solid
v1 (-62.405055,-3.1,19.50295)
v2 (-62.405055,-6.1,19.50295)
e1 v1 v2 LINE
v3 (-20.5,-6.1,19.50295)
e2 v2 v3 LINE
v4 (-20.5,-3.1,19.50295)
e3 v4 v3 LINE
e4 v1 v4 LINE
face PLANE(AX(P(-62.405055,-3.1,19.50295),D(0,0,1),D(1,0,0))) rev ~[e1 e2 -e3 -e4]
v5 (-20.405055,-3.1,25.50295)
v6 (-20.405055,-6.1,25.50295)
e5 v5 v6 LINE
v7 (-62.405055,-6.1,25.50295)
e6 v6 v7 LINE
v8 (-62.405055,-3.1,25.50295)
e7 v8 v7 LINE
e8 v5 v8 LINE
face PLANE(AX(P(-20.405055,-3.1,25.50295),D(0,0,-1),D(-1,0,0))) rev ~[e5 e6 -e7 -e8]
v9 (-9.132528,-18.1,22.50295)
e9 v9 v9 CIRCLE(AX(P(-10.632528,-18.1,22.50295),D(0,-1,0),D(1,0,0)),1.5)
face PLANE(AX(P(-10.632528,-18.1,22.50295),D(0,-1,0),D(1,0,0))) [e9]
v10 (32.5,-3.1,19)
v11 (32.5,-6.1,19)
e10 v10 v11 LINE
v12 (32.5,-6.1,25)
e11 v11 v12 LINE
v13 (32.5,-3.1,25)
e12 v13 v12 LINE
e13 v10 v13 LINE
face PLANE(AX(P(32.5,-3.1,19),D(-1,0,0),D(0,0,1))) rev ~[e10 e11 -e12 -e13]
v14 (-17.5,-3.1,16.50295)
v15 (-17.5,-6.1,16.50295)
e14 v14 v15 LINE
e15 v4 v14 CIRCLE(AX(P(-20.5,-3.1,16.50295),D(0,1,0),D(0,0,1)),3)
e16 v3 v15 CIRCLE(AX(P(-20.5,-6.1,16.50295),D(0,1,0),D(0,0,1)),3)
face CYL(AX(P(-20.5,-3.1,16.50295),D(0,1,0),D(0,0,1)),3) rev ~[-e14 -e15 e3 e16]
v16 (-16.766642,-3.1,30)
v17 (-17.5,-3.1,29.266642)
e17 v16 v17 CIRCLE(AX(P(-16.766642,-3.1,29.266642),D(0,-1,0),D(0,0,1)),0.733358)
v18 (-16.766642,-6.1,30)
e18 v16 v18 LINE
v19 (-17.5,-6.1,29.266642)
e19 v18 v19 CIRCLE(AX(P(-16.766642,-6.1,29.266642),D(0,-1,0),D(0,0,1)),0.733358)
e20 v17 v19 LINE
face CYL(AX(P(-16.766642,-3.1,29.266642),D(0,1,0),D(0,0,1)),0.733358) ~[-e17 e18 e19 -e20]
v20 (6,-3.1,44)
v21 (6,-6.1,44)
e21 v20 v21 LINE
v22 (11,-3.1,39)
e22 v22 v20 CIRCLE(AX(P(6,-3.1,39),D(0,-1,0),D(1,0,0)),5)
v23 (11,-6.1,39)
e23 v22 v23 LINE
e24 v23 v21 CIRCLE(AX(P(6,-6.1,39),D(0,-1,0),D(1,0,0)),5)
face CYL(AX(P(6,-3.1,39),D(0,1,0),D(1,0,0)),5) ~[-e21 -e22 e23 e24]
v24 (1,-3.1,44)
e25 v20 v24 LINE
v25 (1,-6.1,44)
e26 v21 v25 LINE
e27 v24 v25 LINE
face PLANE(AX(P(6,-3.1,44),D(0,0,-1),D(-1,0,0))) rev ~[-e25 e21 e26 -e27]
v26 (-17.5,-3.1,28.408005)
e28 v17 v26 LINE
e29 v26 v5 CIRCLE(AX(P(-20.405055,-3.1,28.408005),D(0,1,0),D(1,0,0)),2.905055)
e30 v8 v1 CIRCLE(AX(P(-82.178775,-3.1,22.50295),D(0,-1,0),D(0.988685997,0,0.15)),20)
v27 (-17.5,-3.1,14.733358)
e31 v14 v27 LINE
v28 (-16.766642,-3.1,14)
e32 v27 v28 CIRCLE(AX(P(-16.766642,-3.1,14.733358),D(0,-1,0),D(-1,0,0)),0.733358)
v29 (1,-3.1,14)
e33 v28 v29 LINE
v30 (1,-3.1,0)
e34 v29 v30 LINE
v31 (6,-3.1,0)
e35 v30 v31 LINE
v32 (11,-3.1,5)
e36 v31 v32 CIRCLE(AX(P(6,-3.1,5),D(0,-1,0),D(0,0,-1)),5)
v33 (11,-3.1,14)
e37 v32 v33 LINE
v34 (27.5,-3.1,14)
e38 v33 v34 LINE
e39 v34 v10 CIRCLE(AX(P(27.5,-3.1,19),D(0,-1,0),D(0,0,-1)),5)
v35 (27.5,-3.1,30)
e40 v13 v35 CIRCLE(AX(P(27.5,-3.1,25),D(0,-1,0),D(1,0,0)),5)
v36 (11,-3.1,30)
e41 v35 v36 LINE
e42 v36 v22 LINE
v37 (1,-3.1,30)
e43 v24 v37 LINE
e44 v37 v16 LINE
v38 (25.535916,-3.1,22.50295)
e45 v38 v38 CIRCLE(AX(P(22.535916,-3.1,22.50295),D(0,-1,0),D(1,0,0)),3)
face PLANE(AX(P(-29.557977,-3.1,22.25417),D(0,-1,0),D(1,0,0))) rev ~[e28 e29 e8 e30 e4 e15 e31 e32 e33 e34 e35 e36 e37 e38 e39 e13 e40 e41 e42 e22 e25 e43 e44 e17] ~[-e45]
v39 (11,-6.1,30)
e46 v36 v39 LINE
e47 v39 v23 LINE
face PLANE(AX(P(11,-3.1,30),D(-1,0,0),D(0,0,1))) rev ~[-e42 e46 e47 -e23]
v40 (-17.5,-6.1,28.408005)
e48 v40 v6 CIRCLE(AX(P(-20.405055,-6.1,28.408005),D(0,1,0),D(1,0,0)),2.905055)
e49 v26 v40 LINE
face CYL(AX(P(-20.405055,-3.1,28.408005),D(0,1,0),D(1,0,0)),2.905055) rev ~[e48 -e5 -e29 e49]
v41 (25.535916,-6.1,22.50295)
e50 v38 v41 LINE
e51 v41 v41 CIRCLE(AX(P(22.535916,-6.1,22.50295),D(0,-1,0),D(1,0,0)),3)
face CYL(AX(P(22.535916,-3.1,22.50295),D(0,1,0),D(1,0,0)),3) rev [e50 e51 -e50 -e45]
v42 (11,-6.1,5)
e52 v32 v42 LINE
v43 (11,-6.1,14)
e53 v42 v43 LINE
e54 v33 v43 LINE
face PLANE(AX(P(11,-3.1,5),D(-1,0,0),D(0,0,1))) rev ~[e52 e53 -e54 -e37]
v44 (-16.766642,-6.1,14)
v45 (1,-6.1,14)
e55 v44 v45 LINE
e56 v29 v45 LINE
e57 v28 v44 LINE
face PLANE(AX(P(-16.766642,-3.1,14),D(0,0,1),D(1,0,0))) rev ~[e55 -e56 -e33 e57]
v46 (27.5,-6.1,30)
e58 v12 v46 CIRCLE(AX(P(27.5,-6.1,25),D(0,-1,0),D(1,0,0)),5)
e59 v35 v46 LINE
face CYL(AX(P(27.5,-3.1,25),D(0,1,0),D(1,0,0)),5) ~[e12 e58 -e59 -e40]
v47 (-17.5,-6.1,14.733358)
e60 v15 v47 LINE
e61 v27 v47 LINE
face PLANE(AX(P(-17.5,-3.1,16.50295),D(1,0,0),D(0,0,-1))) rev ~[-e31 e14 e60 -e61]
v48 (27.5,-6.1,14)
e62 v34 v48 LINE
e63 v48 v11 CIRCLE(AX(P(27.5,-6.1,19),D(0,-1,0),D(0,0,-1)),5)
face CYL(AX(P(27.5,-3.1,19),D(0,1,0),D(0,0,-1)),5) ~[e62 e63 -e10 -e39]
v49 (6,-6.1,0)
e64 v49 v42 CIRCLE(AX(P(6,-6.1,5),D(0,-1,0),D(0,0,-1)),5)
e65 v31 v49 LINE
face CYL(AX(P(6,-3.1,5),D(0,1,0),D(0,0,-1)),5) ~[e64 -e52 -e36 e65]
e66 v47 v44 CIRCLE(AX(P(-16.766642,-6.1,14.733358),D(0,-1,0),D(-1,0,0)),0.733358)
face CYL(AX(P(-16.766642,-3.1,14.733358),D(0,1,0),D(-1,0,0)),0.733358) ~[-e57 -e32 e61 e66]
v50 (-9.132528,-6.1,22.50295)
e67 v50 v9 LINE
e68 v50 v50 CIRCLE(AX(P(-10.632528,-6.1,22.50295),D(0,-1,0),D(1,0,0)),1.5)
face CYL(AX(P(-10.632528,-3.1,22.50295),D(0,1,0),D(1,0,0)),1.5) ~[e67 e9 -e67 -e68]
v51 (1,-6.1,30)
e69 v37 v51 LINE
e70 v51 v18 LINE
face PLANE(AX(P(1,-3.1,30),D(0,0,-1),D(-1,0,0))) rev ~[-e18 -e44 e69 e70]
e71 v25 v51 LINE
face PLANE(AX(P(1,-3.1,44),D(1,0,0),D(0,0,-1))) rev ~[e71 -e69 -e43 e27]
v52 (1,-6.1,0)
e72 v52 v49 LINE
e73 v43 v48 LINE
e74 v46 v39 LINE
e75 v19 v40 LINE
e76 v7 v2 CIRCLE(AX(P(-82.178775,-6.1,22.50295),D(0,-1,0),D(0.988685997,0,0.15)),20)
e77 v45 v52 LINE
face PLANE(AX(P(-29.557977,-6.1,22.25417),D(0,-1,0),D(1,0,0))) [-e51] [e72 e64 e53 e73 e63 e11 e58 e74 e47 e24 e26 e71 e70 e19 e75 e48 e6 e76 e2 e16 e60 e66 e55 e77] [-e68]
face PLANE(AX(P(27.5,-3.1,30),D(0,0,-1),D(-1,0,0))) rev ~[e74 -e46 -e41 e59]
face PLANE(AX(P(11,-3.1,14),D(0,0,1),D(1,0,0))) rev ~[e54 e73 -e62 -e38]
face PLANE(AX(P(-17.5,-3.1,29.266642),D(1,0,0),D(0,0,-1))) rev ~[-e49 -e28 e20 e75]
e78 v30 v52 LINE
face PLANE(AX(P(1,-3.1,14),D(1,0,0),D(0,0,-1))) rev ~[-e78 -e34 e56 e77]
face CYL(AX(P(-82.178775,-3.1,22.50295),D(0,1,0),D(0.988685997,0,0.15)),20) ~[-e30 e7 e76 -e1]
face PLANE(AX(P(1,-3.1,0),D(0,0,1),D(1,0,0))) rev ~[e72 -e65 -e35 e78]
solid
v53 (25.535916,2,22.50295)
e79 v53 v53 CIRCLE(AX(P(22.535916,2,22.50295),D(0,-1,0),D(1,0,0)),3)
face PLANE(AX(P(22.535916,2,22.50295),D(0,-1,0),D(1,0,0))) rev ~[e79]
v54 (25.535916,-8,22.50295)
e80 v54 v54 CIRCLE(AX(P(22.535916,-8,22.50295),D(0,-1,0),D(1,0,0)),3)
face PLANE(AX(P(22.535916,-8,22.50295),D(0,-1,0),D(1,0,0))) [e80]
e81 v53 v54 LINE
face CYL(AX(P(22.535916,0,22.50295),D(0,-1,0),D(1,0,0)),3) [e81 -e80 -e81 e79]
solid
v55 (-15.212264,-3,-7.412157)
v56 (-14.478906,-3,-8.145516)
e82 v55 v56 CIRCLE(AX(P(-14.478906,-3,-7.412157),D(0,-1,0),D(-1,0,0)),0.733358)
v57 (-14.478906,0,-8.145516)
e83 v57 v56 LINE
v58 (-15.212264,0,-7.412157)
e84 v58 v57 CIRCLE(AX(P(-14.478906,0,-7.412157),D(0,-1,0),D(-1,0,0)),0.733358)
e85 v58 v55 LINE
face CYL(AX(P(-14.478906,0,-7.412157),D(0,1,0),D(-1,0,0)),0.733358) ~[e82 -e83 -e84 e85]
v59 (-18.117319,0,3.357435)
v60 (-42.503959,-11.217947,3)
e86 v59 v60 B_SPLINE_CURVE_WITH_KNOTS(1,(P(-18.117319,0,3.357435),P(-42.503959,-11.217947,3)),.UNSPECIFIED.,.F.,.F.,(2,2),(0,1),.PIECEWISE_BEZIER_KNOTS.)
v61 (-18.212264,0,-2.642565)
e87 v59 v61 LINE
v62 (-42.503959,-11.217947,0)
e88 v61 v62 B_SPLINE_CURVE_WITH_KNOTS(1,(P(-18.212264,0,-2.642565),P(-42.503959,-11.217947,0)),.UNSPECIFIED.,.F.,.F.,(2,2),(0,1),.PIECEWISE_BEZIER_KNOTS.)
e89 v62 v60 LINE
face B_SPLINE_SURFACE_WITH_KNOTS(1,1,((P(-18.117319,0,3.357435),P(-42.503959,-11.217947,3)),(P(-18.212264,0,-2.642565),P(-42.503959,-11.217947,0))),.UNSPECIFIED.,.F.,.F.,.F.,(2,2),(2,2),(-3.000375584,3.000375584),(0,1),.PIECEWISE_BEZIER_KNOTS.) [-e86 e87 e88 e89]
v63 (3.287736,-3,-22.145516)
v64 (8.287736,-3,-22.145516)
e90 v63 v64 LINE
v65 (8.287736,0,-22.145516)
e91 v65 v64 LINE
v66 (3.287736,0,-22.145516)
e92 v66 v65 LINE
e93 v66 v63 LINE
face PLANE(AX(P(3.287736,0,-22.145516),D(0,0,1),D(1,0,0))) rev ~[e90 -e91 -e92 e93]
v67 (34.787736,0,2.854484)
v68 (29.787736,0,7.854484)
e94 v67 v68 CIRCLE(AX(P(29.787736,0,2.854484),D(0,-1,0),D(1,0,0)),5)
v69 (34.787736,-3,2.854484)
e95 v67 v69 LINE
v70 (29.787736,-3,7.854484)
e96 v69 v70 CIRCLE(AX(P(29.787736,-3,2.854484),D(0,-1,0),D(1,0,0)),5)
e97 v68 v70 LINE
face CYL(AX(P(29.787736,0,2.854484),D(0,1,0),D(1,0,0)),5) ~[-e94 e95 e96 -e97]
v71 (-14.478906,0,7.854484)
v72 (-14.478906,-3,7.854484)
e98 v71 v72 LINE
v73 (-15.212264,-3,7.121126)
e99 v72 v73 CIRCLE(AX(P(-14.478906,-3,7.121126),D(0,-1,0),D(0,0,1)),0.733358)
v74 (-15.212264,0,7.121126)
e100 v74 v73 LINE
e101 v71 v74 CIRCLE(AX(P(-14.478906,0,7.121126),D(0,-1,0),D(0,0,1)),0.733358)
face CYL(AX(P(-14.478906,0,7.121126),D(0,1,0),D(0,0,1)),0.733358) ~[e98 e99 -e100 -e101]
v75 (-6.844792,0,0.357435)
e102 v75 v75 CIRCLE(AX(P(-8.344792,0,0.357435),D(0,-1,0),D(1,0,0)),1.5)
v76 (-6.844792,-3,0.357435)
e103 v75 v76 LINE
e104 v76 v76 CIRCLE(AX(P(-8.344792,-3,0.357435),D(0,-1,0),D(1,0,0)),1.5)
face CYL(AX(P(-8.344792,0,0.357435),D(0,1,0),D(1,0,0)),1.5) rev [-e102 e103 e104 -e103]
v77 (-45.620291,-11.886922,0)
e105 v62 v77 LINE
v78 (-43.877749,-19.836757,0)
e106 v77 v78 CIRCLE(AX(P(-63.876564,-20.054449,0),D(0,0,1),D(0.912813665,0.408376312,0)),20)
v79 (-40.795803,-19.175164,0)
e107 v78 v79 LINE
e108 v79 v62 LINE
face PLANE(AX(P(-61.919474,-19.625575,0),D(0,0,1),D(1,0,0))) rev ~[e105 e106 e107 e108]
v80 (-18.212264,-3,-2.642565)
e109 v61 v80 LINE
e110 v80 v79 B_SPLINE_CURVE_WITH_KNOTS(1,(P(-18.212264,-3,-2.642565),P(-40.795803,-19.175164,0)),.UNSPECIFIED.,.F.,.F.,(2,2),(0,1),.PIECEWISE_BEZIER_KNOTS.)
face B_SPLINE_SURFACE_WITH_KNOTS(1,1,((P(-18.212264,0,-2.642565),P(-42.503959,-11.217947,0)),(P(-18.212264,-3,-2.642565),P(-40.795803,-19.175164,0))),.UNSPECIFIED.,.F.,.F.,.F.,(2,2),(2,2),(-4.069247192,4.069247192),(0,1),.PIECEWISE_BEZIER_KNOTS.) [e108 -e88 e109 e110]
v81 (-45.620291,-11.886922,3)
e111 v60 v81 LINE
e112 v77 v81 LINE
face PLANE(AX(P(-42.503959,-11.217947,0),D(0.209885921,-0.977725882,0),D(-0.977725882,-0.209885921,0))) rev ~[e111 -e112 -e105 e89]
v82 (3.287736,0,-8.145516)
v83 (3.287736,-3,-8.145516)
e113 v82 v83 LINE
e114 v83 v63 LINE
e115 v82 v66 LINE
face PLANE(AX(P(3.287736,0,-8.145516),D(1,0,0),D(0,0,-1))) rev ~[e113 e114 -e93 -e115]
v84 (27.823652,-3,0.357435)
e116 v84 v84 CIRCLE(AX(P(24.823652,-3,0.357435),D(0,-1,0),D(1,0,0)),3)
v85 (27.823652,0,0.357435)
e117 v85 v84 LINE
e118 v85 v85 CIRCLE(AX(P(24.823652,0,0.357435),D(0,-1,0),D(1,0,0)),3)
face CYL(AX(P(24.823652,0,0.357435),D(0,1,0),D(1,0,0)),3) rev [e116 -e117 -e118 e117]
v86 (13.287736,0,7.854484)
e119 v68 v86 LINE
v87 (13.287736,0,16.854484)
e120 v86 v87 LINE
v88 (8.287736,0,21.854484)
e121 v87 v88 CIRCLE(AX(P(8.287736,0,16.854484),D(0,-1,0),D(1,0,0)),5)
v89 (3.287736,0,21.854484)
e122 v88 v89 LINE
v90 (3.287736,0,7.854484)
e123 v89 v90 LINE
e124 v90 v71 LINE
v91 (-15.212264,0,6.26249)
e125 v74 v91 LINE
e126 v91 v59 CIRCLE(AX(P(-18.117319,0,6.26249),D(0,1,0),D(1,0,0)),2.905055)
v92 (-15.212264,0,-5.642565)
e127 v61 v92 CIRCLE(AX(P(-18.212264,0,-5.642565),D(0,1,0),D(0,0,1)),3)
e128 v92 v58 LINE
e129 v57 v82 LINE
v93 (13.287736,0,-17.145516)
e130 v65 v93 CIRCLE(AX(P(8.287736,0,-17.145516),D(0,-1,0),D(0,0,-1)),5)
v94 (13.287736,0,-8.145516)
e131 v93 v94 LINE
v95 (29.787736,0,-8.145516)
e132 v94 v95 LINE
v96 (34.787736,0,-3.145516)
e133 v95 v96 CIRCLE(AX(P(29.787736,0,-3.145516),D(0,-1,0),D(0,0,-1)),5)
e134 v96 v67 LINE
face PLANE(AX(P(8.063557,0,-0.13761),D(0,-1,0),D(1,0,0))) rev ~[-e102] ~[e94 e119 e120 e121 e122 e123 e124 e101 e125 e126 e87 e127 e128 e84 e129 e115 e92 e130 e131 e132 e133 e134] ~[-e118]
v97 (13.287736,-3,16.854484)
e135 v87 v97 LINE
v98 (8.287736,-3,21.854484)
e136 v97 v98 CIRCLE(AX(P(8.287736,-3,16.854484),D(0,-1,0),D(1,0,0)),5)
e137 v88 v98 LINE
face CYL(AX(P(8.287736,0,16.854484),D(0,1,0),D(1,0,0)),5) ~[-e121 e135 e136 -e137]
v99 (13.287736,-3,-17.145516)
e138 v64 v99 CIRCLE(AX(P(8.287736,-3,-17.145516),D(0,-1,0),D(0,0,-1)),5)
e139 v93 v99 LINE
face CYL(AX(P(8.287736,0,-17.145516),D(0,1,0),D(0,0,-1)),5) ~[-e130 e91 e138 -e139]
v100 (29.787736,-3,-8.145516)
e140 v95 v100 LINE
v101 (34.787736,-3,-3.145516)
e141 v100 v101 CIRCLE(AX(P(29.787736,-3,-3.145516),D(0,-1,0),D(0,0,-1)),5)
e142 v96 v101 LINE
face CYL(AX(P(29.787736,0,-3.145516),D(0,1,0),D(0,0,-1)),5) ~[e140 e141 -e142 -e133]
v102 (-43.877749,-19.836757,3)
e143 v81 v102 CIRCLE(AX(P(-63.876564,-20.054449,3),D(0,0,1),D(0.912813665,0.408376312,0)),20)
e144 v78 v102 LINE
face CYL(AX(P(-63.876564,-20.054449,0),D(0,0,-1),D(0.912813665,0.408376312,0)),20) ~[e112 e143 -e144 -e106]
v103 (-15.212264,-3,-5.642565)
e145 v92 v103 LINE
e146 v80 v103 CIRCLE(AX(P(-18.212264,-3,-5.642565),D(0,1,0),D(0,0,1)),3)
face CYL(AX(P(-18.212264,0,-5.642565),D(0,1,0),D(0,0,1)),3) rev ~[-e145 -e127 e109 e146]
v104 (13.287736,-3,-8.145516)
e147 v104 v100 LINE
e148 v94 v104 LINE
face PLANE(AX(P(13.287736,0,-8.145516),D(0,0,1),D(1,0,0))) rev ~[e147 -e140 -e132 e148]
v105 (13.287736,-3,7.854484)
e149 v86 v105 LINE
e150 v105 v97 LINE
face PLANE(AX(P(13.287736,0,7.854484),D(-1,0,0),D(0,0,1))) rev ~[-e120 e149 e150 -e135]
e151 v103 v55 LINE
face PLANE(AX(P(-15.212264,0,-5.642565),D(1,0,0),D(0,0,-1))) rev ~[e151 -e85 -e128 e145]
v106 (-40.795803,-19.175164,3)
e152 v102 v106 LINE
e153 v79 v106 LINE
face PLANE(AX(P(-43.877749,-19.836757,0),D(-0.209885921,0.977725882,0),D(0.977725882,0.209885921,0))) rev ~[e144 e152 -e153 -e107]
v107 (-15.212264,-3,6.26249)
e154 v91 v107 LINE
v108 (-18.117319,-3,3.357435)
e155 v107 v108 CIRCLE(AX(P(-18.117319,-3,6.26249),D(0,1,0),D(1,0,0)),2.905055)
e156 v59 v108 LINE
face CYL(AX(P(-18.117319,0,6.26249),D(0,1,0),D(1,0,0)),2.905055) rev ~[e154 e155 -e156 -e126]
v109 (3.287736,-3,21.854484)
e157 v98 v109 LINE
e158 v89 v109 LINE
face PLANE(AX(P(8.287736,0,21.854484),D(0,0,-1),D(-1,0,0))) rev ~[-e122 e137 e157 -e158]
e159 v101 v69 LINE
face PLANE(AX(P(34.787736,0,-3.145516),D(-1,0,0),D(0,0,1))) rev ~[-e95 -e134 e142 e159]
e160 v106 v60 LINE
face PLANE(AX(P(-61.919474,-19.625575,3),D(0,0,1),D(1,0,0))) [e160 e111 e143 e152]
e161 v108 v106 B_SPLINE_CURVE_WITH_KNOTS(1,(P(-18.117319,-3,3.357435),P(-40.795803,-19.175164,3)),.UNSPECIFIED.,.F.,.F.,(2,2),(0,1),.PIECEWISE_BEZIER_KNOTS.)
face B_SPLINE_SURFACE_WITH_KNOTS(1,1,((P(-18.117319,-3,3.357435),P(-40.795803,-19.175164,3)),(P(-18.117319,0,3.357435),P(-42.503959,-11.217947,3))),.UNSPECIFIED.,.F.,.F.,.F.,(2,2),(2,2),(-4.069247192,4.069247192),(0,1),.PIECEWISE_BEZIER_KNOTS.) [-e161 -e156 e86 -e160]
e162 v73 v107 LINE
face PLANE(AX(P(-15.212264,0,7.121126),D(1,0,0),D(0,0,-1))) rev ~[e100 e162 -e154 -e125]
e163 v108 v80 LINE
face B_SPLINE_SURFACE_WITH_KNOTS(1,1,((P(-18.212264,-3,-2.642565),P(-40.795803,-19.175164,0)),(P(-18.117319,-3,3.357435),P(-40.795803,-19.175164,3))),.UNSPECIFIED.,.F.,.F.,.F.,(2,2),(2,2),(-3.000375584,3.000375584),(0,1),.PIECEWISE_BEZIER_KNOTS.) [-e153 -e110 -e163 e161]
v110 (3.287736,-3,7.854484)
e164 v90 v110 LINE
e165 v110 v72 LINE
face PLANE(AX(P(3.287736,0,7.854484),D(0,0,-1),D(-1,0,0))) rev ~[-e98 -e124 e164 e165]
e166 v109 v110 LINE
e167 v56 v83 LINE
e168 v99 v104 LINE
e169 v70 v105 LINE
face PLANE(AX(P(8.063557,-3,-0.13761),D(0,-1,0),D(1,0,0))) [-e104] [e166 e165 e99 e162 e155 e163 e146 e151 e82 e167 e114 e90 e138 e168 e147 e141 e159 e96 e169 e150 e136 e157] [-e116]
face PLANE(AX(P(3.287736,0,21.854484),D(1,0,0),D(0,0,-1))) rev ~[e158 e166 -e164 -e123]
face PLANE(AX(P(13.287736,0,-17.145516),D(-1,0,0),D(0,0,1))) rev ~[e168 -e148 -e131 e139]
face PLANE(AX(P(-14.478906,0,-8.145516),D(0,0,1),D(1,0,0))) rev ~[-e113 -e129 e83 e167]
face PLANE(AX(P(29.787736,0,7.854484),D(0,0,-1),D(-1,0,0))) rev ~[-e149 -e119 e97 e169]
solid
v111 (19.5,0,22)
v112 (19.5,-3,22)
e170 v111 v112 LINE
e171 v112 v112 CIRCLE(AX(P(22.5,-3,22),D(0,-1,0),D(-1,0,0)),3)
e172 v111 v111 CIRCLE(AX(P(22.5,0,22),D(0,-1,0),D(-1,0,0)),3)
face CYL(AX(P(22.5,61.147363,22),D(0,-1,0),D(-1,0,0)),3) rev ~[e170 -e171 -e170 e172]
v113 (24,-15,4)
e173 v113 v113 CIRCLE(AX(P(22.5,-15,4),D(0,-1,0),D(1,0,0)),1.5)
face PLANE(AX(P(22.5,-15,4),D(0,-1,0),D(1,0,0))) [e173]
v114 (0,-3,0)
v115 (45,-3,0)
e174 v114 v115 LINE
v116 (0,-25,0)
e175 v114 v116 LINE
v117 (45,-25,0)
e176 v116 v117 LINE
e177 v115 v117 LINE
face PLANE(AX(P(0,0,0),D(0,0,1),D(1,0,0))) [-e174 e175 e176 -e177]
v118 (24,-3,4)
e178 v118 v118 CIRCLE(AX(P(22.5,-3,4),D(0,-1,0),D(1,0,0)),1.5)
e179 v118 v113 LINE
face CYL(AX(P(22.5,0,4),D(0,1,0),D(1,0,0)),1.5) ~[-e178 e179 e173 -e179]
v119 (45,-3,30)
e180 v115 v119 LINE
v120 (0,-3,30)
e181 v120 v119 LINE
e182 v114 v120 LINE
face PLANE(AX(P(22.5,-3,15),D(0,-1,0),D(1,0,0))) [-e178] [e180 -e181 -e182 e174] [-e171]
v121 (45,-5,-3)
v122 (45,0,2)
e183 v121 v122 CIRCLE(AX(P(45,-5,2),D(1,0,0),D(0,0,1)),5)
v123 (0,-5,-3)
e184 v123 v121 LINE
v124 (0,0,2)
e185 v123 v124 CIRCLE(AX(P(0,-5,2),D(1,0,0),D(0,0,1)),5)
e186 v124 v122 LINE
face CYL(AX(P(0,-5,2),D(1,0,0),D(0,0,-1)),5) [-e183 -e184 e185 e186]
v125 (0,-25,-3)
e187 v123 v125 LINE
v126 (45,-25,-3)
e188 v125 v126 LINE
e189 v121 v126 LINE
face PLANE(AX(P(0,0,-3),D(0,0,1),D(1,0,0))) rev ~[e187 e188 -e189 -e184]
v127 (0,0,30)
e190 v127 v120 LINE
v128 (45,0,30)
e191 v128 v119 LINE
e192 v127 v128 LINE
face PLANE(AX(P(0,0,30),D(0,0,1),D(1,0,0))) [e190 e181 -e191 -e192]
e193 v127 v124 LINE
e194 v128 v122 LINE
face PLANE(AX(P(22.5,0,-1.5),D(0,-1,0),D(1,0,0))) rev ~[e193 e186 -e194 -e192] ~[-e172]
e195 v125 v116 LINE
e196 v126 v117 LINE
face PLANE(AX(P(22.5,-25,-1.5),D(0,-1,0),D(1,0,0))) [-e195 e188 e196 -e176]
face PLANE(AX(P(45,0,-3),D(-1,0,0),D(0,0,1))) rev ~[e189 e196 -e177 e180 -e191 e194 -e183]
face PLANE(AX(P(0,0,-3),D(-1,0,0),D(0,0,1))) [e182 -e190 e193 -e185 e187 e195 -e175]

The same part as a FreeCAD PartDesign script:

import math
import FreeCAD as App
import Part
import Sketcher
from FreeCAD import Vector


def edges_at(feature, points):
    """Names of the edges that pass closest to the given points."""
    edges = feature.Shape.Edges
    near = lambda p: min(range(len(edges)), key=lambda i: edges[i].distToShape(Part.Vertex(*p))[0])
    return sorted({f"Edge{near(p) + 1}" for p in points})


def add_polygon(sketch, points):
    """Adds a closed chain of lines whose ends are joined by coincident constraints."""
    first, n = sketch.GeometryCount, len(points)
    for a, b in zip(points, points[1:] + points[:1]):
        sketch.addGeometry(Part.LineSegment(App.Vector(*a, 0), App.Vector(*b, 0)), False)
    for i in range(n):
        sketch.addConstraint(Sketcher.Constraint("Coincident", first + i, 2, first + (i + 1) % n, 1))

doc = App.newDocument("Part")
body = doc.addObject("PartDesign::Body", "Body")

# Sketch on XZ plane
sketch1 = doc.addObject("Sketcher::SketchObject", "Sketch")
body.addObject(sketch1)
sketch1.AttachmentSupport = (doc.XZ_Plane, [""])
sketch1.MapMode = "FlatFace"
add_polygon(sketch1, [(0, 30), (0, 0), (45, 0), (45, 30)])  # lines 0-3
sketch1.addGeometry(Part.Circle(Vector(22.5, 4, 0), Vector(0, 0, 1), 1.5), False)  # 4
sketch1.addConstraint(Sketcher.Constraint("Vertical", 0))
sketch1.addConstraint(Sketcher.Constraint("Horizontal", 1))
sketch1.addConstraint(Sketcher.Constraint("Vertical", 2))
sketch1.addConstraint(Sketcher.Constraint("Horizontal", 3))
sketch1.addConstraint(Sketcher.Constraint("Coincident", 0, 2, -1, 1))
sketch1.addConstraint(Sketcher.Constraint("Diameter", 4, 3.0))
sketch1.addConstraint(Sketcher.Constraint("DistanceX", 1, 1, 1, 2, 45.0))
sketch1.addConstraint(Sketcher.Constraint("DistanceY", 0, 2, 0, 1, 30.0))
sketch1.addConstraint(Sketcher.Constraint("DistanceY", -1, 1, 4, 3, 4.0))
sketch1.addConstraint(Sketcher.Constraint("DistanceX", -1, 1, 4, 3, 22.5))
pad1 = doc.addObject("PartDesign::Pad", "Pad")
body.addObject(pad1)
pad1.Profile = sketch1
pad1.Length = 3

# Sketch on XZ plane
sketch2 = doc.addObject("Sketcher::SketchObject", "Sketch001")
body.addObject(sketch2)
sketch2.AttachmentSupport = (doc.XZ_Plane, [""])
sketch2.MapMode = "FlatFace"
add_polygon(sketch2, [(0, 0), (0, -3), (45, -3), (45, 0)])  # lines 0-3
sketch2.addConstraint(Sketcher.Constraint("Vertical", 0))
sketch2.addConstraint(Sketcher.Constraint("Horizontal", 1))
sketch2.addConstraint(Sketcher.Constraint("Vertical", 2))
sketch2.addConstraint(Sketcher.Constraint("Horizontal", 3))
sketch2.addConstraint(Sketcher.Constraint("Coincident", 3, 2, -1, 1))
sketch2.addConstraint(Sketcher.Constraint("DistanceX", 1, 1, 1, 2, 45.0))
sketch2.addConstraint(Sketcher.Constraint("DistanceY", 0, 2, 0, 1, 3.0))
pad2 = doc.addObject("PartDesign::Pad", "Pad001")
body.addObject(pad2)
pad2.Profile = sketch2
pad2.Length = 25

# Sketch on XZ plane
sketch3 = doc.addObject("Sketcher::SketchObject", "Sketch002")
body.addObject(sketch3)
sketch3.AttachmentSupport = (doc.XZ_Plane, [""])
sketch3.MapMode = "FlatFace"
sketch3.addGeometry(Part.Circle(Vector(22.5, 22, 0), Vector(0, 0, 1), 3), False)
sketch3.addConstraint(Sketcher.Constraint("Diameter", 0, 6.0))
sketch3.addConstraint(Sketcher.Constraint("DistanceY", -1, 1, 0, 3, 22.0))
sketch3.addConstraint(Sketcher.Constraint("DistanceX", -1, 1, 0, 3, 22.5))
doc.recompute()
hole = doc.addObject("PartDesign::Hole", "Hole")
body.addObject(hole)
hole.Profile = sketch3
hole.ThreadType = "None"
hole.Diameter = 6
hole.DepthType = "ThroughAll"
hole.Reversed = True
doc.recompute()

fillet = doc.addObject("PartDesign::Fillet", "Fillet")
body.addObject(fillet)
fillet.Base = (hole, edges_at(hole, [(22.5, 0, -3)]))
fillet.Radius = 5

# Sketch on XZ plane
sketch4 = doc.addObject("Sketcher::SketchObject", "Sketch003")
body.addObject(sketch4)
sketch4.AttachmentSupport = (doc.XZ_Plane, [""])
sketch4.MapMode = "FlatFace"
sketch4.addGeometry(Part.Circle(Vector(22.5, 4, 0), Vector(0, 0, 1), 1.5), False)
sketch4.addConstraint(Sketcher.Constraint("Diameter", 0, 3.0))
sketch4.addConstraint(Sketcher.Constraint("DistanceY", -1, 1, 0, 3, 4.0))
sketch4.addConstraint(Sketcher.Constraint("DistanceX", -1, 1, 0, 3, 22.5))
pad3 = doc.addObject("PartDesign::Pad", "Pad002")
body.addObject(pad3)
pad3.Profile = sketch4
pad3.Length = 15
body2 = doc.addObject("PartDesign::Body", "Body001")

# Sketch on XZ plane
sketch5 = doc.addObject("Sketcher::SketchObject", "Sketch004")
body2.addObject(sketch5)
sketch5.AttachmentSupport = (doc.getObject("XZ_Plane001"), [""])
sketch5.MapMode = "FlatFace"
sketch5.addGeometry(Part.ArcOfCircle(Part.Circle(Vector(27.5, 25, 0), Vector(0, 0, 1), 5), math.radians(0), math.radians(90)), False)
sketch5.addGeometry(Part.LineSegment(Vector(27.5, 30, 0), Vector(11, 30, 0)), False)
sketch5.addGeometry(Part.LineSegment(Vector(11, 30, 0), Vector(11, 39, 0)), False)
sketch5.addGeometry(Part.ArcOfCircle(Part.Circle(Vector(6, 39, 0), Vector(0, 0, 1), 5), math.radians(0), math.radians(90)), False)
sketch5.addGeometry(Part.LineSegment(Vector(6, 44, 0), Vector(1, 44, 0)), False)
sketch5.addGeometry(Part.LineSegment(Vector(1, 44, 0), Vector(1, 30, 0)), False)
sketch5.addGeometry(Part.LineSegment(Vector(1, 30, 0), Vector(-16.766642, 30, 0)), False)
sketch5.addGeometry(Part.ArcOfCircle(Part.Circle(Vector(-16.766642, 29.266642, 0), Vector(0, 0, 1), 0.733358), math.radians(90), math.radians(180)), False)
sketch5.addGeometry(Part.LineSegment(Vector(-17.5, 29.266642, 0), Vector(-17.5, 28.408005, 0)), False)
sketch5.addGeometry(Part.ArcOfCircle(Part.Circle(Vector(-20.405055, 28.408005, 0), Vector(0, 0, 1), 2.905055), math.radians(-90), math.radians(0)), False)
sketch5.addGeometry(Part.LineSegment(Vector(-20.405055, 25.50295, 0), Vector(-62.405055, 25.50295, 0)), False)
sketch5.addGeometry(Part.ArcOfCircle(Part.Circle(Vector(-82.178775, 22.50295, 0), Vector(0, 0, 1), 20), math.radians(8.626927), math.radians(351.373073)), False)
sketch5.addGeometry(Part.LineSegment(Vector(-62.405055, 19.50295, 0), Vector(-20.5, 19.50295, 0)), False)
sketch5.addGeometry(Part.ArcOfCircle(Part.Circle(Vector(-20.5, 16.50295, 0), Vector(0, 0, 1), 3), math.radians(0), math.radians(90)), False)
sketch5.addGeometry(Part.LineSegment(Vector(-17.5, 16.50295, 0), Vector(-17.5, 14.733358, 0)), False)
sketch5.addGeometry(Part.ArcOfCircle(Part.Circle(Vector(-16.766642, 14.733358, 0), Vector(0, 0, 1), 0.733358), math.radians(180), math.radians(270)), False)
sketch5.addGeometry(Part.LineSegment(Vector(-16.766642, 14, 0), Vector(1, 14, 0)), False)
sketch5.addGeometry(Part.LineSegment(Vector(1, 14, 0), Vector(1, 0, 0)), False)
sketch5.addGeometry(Part.LineSegment(Vector(1, 0, 0), Vector(6, 0, 0)), False)
sketch5.addGeometry(Part.ArcOfCircle(Part.Circle(Vector(6, 5, 0), Vector(0, 0, 1), 5), math.radians(-90), math.radians(0)), False)
sketch5.addGeometry(Part.LineSegment(Vector(11, 5, 0), Vector(11, 14, 0)), False)
sketch5.addGeometry(Part.LineSegment(Vector(11, 14, 0), Vector(27.5, 14, 0)), False)
sketch5.addGeometry(Part.ArcOfCircle(Part.Circle(Vector(27.5, 19, 0), Vector(0, 0, 1), 5), math.radians(-90), math.radians(0)), False)
sketch5.addGeometry(Part.LineSegment(Vector(32.5, 19, 0), Vector(32.5, 25, 0)), False)
sketch5.addGeometry(Part.Circle(Vector(-10.632528, 22.50295, 0), Vector(0, 0, 1), 1.5), False)
sketch5.addGeometry(Part.Circle(Vector(22.535916, 22.50295, 0), Vector(0, 0, 1), 3), False)
sketch5.addConstraint(Sketcher.Constraint("Tangent", 0, 2, 1, 1))
sketch5.addConstraint(Sketcher.Constraint("Coincident", 1, 2, 2, 1))
sketch5.addConstraint(Sketcher.Constraint("Tangent", 2, 2, 3, 1))
sketch5.addConstraint(Sketcher.Constraint("Tangent", 3, 2, 4, 1))
sketch5.addConstraint(Sketcher.Constraint("Coincident", 4, 2, 5, 1))
sketch5.addConstraint(Sketcher.Constraint("Coincident", 5, 2, 6, 1))
sketch5.addConstraint(Sketcher.Constraint("Tangent", 6, 2, 7, 1))
sketch5.addConstraint(Sketcher.Constraint("Tangent", 7, 2, 8, 1))
sketch5.addConstraint(Sketcher.Constraint("Tangent", 8, 2, 9, 2))
sketch5.addConstraint(Sketcher.Constraint("Tangent", 9, 1, 10, 1))
sketch5.addConstraint(Sketcher.Constraint("Coincident", 10, 2, 11, 1))
sketch5.addConstraint(Sketcher.Constraint("Coincident", 11, 2, 12, 1))
sketch5.addConstraint(Sketcher.Constraint("Tangent", 12, 2, 13, 2))
sketch5.addConstraint(Sketcher.Constraint("Tangent", 13, 1, 14, 1))
sketch5.addConstraint(Sketcher.Constraint("Tangent", 14, 2, 15, 1))
sketch5.addConstraint(Sketcher.Constraint("Tangent", 15, 2, 16, 1))
sketch5.addConstraint(Sketcher.Constraint("Coincident", 16, 2, 17, 1))
sketch5.addConstraint(Sketcher.Constraint("Coincident", 17, 2, 18, 1))
sketch5.addConstraint(Sketcher.Constraint("Tangent", 18, 2, 19, 1))
sketch5.addConstraint(Sketcher.Constraint("Tangent", 19, 2, 20, 1))
sketch5.addConstraint(Sketcher.Constraint("Coincident", 20, 2, 21, 1))
sketch5.addConstraint(Sketcher.Constraint("Tangent", 21, 2, 22, 1))
sketch5.addConstraint(Sketcher.Constraint("Tangent", 22, 2, 23, 1))
sketch5.addConstraint(Sketcher.Constraint("Tangent", 23, 2, 0, 1))
sketch5.addConstraint(Sketcher.Constraint("Horizontal", 1))
sketch5.addConstraint(Sketcher.Constraint("Vertical", 2))
sketch5.addConstraint(Sketcher.Constraint("Horizontal", 4))
sketch5.addConstraint(Sketcher.Constraint("Vertical", 5))
sketch5.addConstraint(Sketcher.Constraint("Horizontal", 6))
sketch5.addConstraint(Sketcher.Constraint("Vertical", 8))
sketch5.addConstraint(Sketcher.Constraint("Horizontal", 10))
sketch5.addConstraint(Sketcher.Constraint("Horizontal", 12))
sketch5.addConstraint(Sketcher.Constraint("Vertical", 14))
sketch5.addConstraint(Sketcher.Constraint("Horizontal", 16))
sketch5.addConstraint(Sketcher.Constraint("Vertical", 17))
sketch5.addConstraint(Sketcher.Constraint("Horizontal", 18))
sketch5.addConstraint(Sketcher.Constraint("Vertical", 20))
sketch5.addConstraint(Sketcher.Constraint("Horizontal", 21))
sketch5.addConstraint(Sketcher.Constraint("Vertical", 23))
sketch5.addConstraint(Sketcher.Constraint("Equal", 0, 3))
sketch5.addConstraint(Sketcher.Constraint("Equal", 7, 15))
sketch5.addConstraint(Sketcher.Constraint("Equal", 3, 19))
sketch5.addConstraint(Sketcher.Constraint("Equal", 19, 22))
sketch5.addConstraint(Sketcher.Constraint("Equal", 13, 25))
sketch5.addConstraint(Sketcher.Constraint("PointOnObject", 17, 2, -1))
sketch5.addConstraint(Sketcher.Constraint("Horizontal", 11, 3, 24, 3))
sketch5.addConstraint(Sketcher.Constraint("Horizontal", 24, 3, 25, 3))
sketch5.addConstraint(Sketcher.Constraint("Horizontal", 1, 2, 5, 2))
sketch5.addConstraint(Sketcher.Constraint("Horizontal", 16, 2, 20, 2))
sketch5.addConstraint(Sketcher.Constraint("Vertical", 7, 3, 15, 3))
sketch5.addConstraint(Sketcher.Constraint("Vertical", 3, 3, 19, 3))
sketch5.addConstraint(Sketcher.Constraint("Vertical", 10, 2, 11, 2))
sketch5.addConstraint(Sketcher.Constraint("Vertical", 5, 2, 16, 2))
sketch5.addConstraint(Sketcher.Constraint("Equal", 5, 17))
sketch5.addConstraint(Sketcher.Constraint("Diameter", 24, 3.0))
sketch5.addConstraint(Sketcher.Constraint("Diameter", 25, 6.0))
sketch5.addConstraint(Sketcher.Constraint("Radius", 0, 5.0))
sketch5.addConstraint(Sketcher.Constraint("Radius", 11, 20.0))
sketch5.addConstraint(Sketcher.Constraint("DistanceX", 4, 2, 4, 1, 5.0))
sketch5.addConstraint(Sketcher.Constraint("DistanceX", 10, 2, 10, 1, 42.0))
sketch5.addConstraint(Sketcher.Constraint("DistanceY", 2, 1, 2, 2, 9.0))
sketch5.addConstraint(Sketcher.Constraint("DistanceY", 23, 1, 23, 2, 6.0))
sketch5.addConstraint(Sketcher.Constraint("DistanceX", 1, 2, 1, 1, 16.5))
sketch5.addConstraint(Sketcher.Constraint("DistanceX", -1, 1, 3, 3, 6.0))
sketch5.addConstraint(Sketcher.Constraint("DistanceX", 13, 3, 0, 3, 48.0))
sketch5.addConstraint(Sketcher.Constraint("DistanceY", 13, 3, 11, 3, 6.0))
sketch5.addConstraint(Sketcher.Constraint("Radius", 7, 0.733358))
sketch5.addConstraint(Sketcher.Constraint("Radius", 9, 2.905055))
sketch5.addConstraint(Sketcher.Constraint("DistanceY", 14, 2, 14, 1, 1.769592))
sketch5.addConstraint(Sketcher.Constraint("DistanceX", 24, 3, -1, 1, 10.632528))
sketch5.addConstraint(Sketcher.Constraint("DistanceX", -1, 1, 25, 3, 22.535916))
pad4 = doc.addObject("PartDesign::Pad", "Pad003")
body2.addObject(pad4)
pad4.Profile = sketch5
pad4.Length = 3

# Sketch on XZ plane
sketch6 = doc.addObject("Sketcher::SketchObject", "Sketch005")
body2.addObject(sketch6)
sketch6.AttachmentSupport = (doc.getObject("XZ_Plane001"), [""])
sketch6.MapMode = "FlatFace"
sketch6.addGeometry(Part.Circle(Vector(-10.632528, 22.50295, 0), Vector(0, 0, 1), 1.5), False)
sketch6.addConstraint(Sketcher.Constraint("Diameter", 0, 3.0))
sketch6.addConstraint(Sketcher.Constraint("DistanceY", -1, 1, 0, 3, 22.50295))
sketch6.addConstraint(Sketcher.Constraint("DistanceX", 0, 3, -1, 1, 10.632528))
pad5 = doc.addObject("PartDesign::Pad", "Pad004")
body2.addObject(pad5)
pad5.Profile = sketch6
pad5.Length = 15
body3 = doc.addObject("PartDesign::Body", "Body002")

# Sketch on XZ plane
sketch7 = doc.addObject("Sketcher::SketchObject", "Sketch006")
body3.addObject(sketch7)
sketch7.AttachmentSupport = (doc.getObject("XZ_Plane002"), [""])
sketch7.MapMode = "FlatFace"
sketch7.addGeometry(Part.Circle(Vector(22.535916, 22.50295, 0), Vector(0, 0, 1), 3), False)
sketch7.addConstraint(Sketcher.Constraint("Diameter", 0, 6.0))
sketch7.addConstraint(Sketcher.Constraint("DistanceY", -1, 1, 0, 3, 22.50295))
sketch7.addConstraint(Sketcher.Constraint("DistanceX", -1, 1, 0, 3, 22.535916))
pad6 = doc.addObject("PartDesign::Pad", "Pad005")
body3.addObject(pad6)
pad6.Profile = sketch7
pad6.Type = "TwoLengths"
pad6.Length = 8
pad6.Length2 = 2
body4 = doc.addObject("PartDesign::Body", "Body003")
doc.recompute()

body2.Placement = App.Placement(Vector(0, -3.1, 0), App.Rotation(Vector(0, 0, 1), 0))
boolean = doc.addObject("PartDesign::Boolean", "Boolean")
body4.addObject(boolean)
boolean.Type = "Fuse"
boolean.addObjects([body2])
body5 = doc.addObject("PartDesign::Body", "Body004")

# Sketch on XY plane
sketch8 = doc.addObject("Sketcher::SketchObject", "Sketch007")
body5.addObject(sketch8)
sketch8.AttachmentSupport = (doc.getObject("XY_Plane004"), [""])
sketch8.MapMode = "FlatFace"
sketch8.addGeometry(Part.LineSegment(Vector(-42.503959, -11.217947, 0), Vector(-45.620291, -11.886922, 0)), False)
sketch8.addGeometry(Part.ArcOfCircle(Part.Circle(Vector(-63.876564, -20.054449, 0), Vector(0, 0, 1), 20), math.radians(24.102878), math.radians(360.623652)), False)
sketch8.addGeometry(Part.LineSegment(Vector(-43.877749, -19.836757, 0), Vector(-40.795803, -19.175164, 0)), False)
sketch8.addGeometry(Part.LineSegment(Vector(-40.795803, -19.175164, 0), Vector(-42.503959, -11.217947, 0)), False)
sketch8.addConstraint(Sketcher.Constraint("Coincident", 0, 2, 1, 1))
sketch8.addConstraint(Sketcher.Constraint("Coincident", 1, 2, 2, 1))
sketch8.addConstraint(Sketcher.Constraint("Coincident", 2, 2, 3, 1))
sketch8.addConstraint(Sketcher.Constraint("Coincident", 3, 2, 0, 1))
sketch8.addConstraint(Sketcher.Constraint("Parallel", 0, 2))
sketch8.addConstraint(Sketcher.Constraint("Perpendicular", 2, 3))
sketch8.addConstraint(Sketcher.Constraint("Radius", 1, 20.0))
sketch8.addConstraint(Sketcher.Constraint("DistanceY", 1, 3, 3, 2, 8.836501))
sketch8.addConstraint(Sketcher.Constraint("DistanceY", 1, 3, -1, 1, 20.054449))
sketch8.addConstraint(Sketcher.Constraint("DistanceX", 0, 2, -1, 1, 45.620291))
sketch8.addConstraint(Sketcher.Constraint("DistanceX", 1, 2, -1, 1, 43.877749))
sketch8.addConstraint(Sketcher.Constraint("DistanceX", 3, 2, -1, 1, 42.503959))
sketch8.addConstraint(Sketcher.Constraint("DistanceY", 1, 3, 1, 2, 0.217691))
pad7 = doc.addObject("PartDesign::Pad", "Pad006")
body5.addObject(pad7)
pad7.Profile = sketch8
pad7.Length = 3
body6 = doc.addObject("PartDesign::Body", "Body005")

# Sketch on XZ plane
sketch9 = doc.addObject("Sketcher::SketchObject", "Sketch008")
body6.addObject(sketch9)
sketch9.AttachmentSupport = (doc.getObject("XZ_Plane005"), [""])
sketch9.MapMode = "FlatFace"
sketch9.addGeometry(Part.ArcOfCircle(Part.Circle(Vector(29.787736, 2.854484, 0), Vector(0, 0, 1), 5), math.radians(0), math.radians(90)), False)
sketch9.addGeometry(Part.LineSegment(Vector(29.787736, 7.854484, 0), Vector(13.287736, 7.854484, 0)), False)
sketch9.addGeometry(Part.LineSegment(Vector(13.287736, 7.854484, 0), Vector(13.287736, 16.854484, 0)), False)
sketch9.addGeometry(Part.ArcOfCircle(Part.Circle(Vector(8.287736, 16.854484, 0), Vector(0, 0, 1), 5), math.radians(0), math.radians(90)), False)
sketch9.addGeometry(Part.LineSegment(Vector(8.287736, 21.854484, 0), Vector(3.287736, 21.854484, 0)), False)
sketch9.addGeometry(Part.LineSegment(Vector(3.287736, 21.854484, 0), Vector(3.287736, 7.854484, 0)), False)
sketch9.addGeometry(Part.LineSegment(Vector(3.287736, 7.854484, 0), Vector(-14.478906, 7.854484, 0)), False)
sketch9.addGeometry(Part.ArcOfCircle(Part.Circle(Vector(-14.478906, 7.121126, 0), Vector(0, 0, 1), 0.733358), math.radians(90), math.radians(180)), False)
sketch9.addGeometry(Part.LineSegment(Vector(-15.212264, 7.121126, 0), Vector(-15.212264, 6.26249, 0)), False)
sketch9.addGeometry(Part.ArcOfCircle(Part.Circle(Vector(-18.117319, 6.26249, 0), Vector(0, 0, 1), 2.905055), math.radians(-90), math.radians(0)), False)
sketch9.addGeometry(Part.LineSegment(Vector(-18.117319, 3.357435, 0), Vector(-18.212264, -2.642565, 0)), False)
sketch9.addGeometry(Part.ArcOfCircle(Part.Circle(Vector(-18.212264, -5.642565, 0), Vector(0, 0, 1), 3), math.radians(0), math.radians(90)), False)
sketch9.addGeometry(Part.LineSegment(Vector(-15.212264, -5.642565, 0), Vector(-15.212264, -7.412157, 0)), False)
sketch9.addGeometry(Part.ArcOfCircle(Part.Circle(Vector(-14.478906, -7.412157, 0), Vector(0, 0, 1), 0.733358), math.radians(180), math.radians(270)), False)
sketch9.addGeometry(Part.LineSegment(Vector(-14.478906, -8.145516, 0), Vector(3.287736, -8.145516, 0)), False)
sketch9.addGeometry(Part.LineSegment(Vector(3.287736, -8.145516, 0), Vector(3.287736, -22.145516, 0)), False)
sketch9.addGeometry(Part.LineSegment(Vector(3.287736, -22.145516, 0), Vector(8.287736, -22.145516, 0)), False)
sketch9.addGeometry(Part.ArcOfCircle(Part.Circle(Vector(8.287736, -17.145516, 0), Vector(0, 0, 1), 5), math.radians(-90), math.radians(0)), False)
sketch9.addGeometry(Part.LineSegment(Vector(13.287736, -17.145516, 0), Vector(13.287736, -8.145516, 0)), False)
sketch9.addGeometry(Part.LineSegment(Vector(13.287736, -8.145516, 0), Vector(29.787736, -8.145516, 0)), False)
sketch9.addGeometry(Part.ArcOfCircle(Part.Circle(Vector(29.787736, -3.145516, 0), Vector(0, 0, 1), 5), math.radians(-90), math.radians(0)), False)
sketch9.addGeometry(Part.LineSegment(Vector(34.787736, -3.145516, 0), Vector(34.787736, 2.854484, 0)), False)
sketch9.addGeometry(Part.Circle(Vector(-8.344792, 0.357435, 0), Vector(0, 0, 1), 1.5), False)
sketch9.addGeometry(Part.Circle(Vector(24.823652, 0.357435, 0), Vector(0, 0, 1), 3), False)
sketch9.addConstraint(Sketcher.Constraint("Tangent", 0, 2, 1, 1))
sketch9.addConstraint(Sketcher.Constraint("Coincident", 1, 2, 2, 1))
sketch9.addConstraint(Sketcher.Constraint("Tangent", 2, 2, 3, 1))
sketch9.addConstraint(Sketcher.Constraint("Tangent", 3, 2, 4, 1))
sketch9.addConstraint(Sketcher.Constraint("Coincident", 4, 2, 5, 1))
sketch9.addConstraint(Sketcher.Constraint("Coincident", 5, 2, 6, 1))
sketch9.addConstraint(Sketcher.Constraint("Tangent", 6, 2, 7, 1))
sketch9.addConstraint(Sketcher.Constraint("Tangent", 7, 2, 8, 1))
sketch9.addConstraint(Sketcher.Constraint("Tangent", 8, 2, 9, 2))
sketch9.addConstraint(Sketcher.Constraint("Coincident", 9, 1, 10, 1))
sketch9.addConstraint(Sketcher.Constraint("Coincident", 10, 2, 11, 2))
sketch9.addConstraint(Sketcher.Constraint("Tangent", 11, 1, 12, 1))
sketch9.addConstraint(Sketcher.Constraint("Tangent", 12, 2, 13, 1))
sketch9.addConstraint(Sketcher.Constraint("Tangent", 13, 2, 14, 1))
sketch9.addConstraint(Sketcher.Constraint("Coincident", 14, 2, 15, 1))
sketch9.addConstraint(Sketcher.Constraint("Coincident", 15, 2, 16, 1))
sketch9.addConstraint(Sketcher.Constraint("Tangent", 16, 2, 17, 1))
sketch9.addConstraint(Sketcher.Constraint("Tangent", 17, 2, 18, 1))
sketch9.addConstraint(Sketcher.Constraint("Coincident", 18, 2, 19, 1))
sketch9.addConstraint(Sketcher.Constraint("Tangent", 19, 2, 20, 1))
sketch9.addConstraint(Sketcher.Constraint("Tangent", 20, 2, 21, 1))
sketch9.addConstraint(Sketcher.Constraint("Tangent", 21, 2, 0, 1))
sketch9.addConstraint(Sketcher.Constraint("Horizontal", 1))
sketch9.addConstraint(Sketcher.Constraint("Vertical", 2))
sketch9.addConstraint(Sketcher.Constraint("Horizontal", 4))
sketch9.addConstraint(Sketcher.Constraint("Vertical", 5))
sketch9.addConstraint(Sketcher.Constraint("Horizontal", 6))
sketch9.addConstraint(Sketcher.Constraint("Vertical", 8))
sketch9.addConstraint(Sketcher.Constraint("Vertical", 12))
sketch9.addConstraint(Sketcher.Constraint("Horizontal", 14))
sketch9.addConstraint(Sketcher.Constraint("Vertical", 15))
sketch9.addConstraint(Sketcher.Constraint("Horizontal", 16))
sketch9.addConstraint(Sketcher.Constraint("Vertical", 18))
sketch9.addConstraint(Sketcher.Constraint("Horizontal", 19))
sketch9.addConstraint(Sketcher.Constraint("Vertical", 21))
sketch9.addConstraint(Sketcher.Constraint("Equal", 0, 3))
sketch9.addConstraint(Sketcher.Constraint("Equal", 7, 13))
sketch9.addConstraint(Sketcher.Constraint("Equal", 3, 17))
sketch9.addConstraint(Sketcher.Constraint("Equal", 17, 20))
sketch9.addConstraint(Sketcher.Constraint("Equal", 11, 23))
sketch9.addConstraint(Sketcher.Constraint("Horizontal", 22, 3, 23, 3))
sketch9.addConstraint(Sketcher.Constraint("Horizontal", 1, 2, 5, 2))
sketch9.addConstraint(Sketcher.Constraint("Horizontal", 14, 2, 18, 2))
sketch9.addConstraint(Sketcher.Constraint("Vertical", 7, 3, 13, 3))
sketch9.addConstraint(Sketcher.Constraint("Vertical", 3, 3, 17, 3))
sketch9.addConstraint(Sketcher.Constraint("Vertical", 11, 3, 10, 2))
sketch9.addConstraint(Sketcher.Constraint("Vertical", 5, 2, 14, 2))
sketch9.addConstraint(Sketcher.Constraint("Equal", 5, 15))
sketch9.addConstraint(Sketcher.Constraint("Diameter", 22, 3.0))
sketch9.addConstraint(Sketcher.Constraint("Diameter", 23, 6.0))
sketch9.addConstraint(Sketcher.Constraint("Radius", 0, 5.0))
sketch9.addConstraint(Sketcher.Constraint("DistanceX", 4, 2, 4, 1, 5.0))
sketch9.addConstraint(Sketcher.Constraint("DistanceY", 2, 1, 2, 2, 9.0))
sketch9.addConstraint(Sketcher.Constraint("DistanceY", 21, 1, 21, 2, 6.0))
sketch9.addConstraint(Sketcher.Constraint("DistanceX", 1, 2, 1, 1, 16.5))
sketch9.addConstraint(Sketcher.Constraint("DistanceX", 11, 3, 0, 3, 48.0))
sketch9.addConstraint(Sketcher.Constraint("DistanceY", 11, 3, 22, 3, 6.0))
sketch9.addConstraint(Sketcher.Constraint("DistanceY", 10, 2, 9, 1, 6.0))
sketch9.addConstraint(Sketcher.Constraint("Radius", 7, 0.733358))
sketch9.addConstraint(Sketcher.Constraint("Radius", 9, 2.905055))
sketch9.addConstraint(Sketcher.Constraint("DistanceY", 12, 2, 12, 1, 1.769592))
sketch9.addConstraint(Sketcher.Constraint("Distance", 10, 6.000751))
sketch9.addConstraint(Sketcher.Constraint("DistanceX", 9, 3, -1, 1, 18.117319))
sketch9.addConstraint(Sketcher.Constraint("DistanceY", -1, 1, 9, 3, 6.26249))
sketch9.addConstraint(Sketcher.Constraint("DistanceX", 22, 3, -1, 1, 8.344792))
sketch9.addConstraint(Sketcher.Constraint("DistanceX", -1, 1, 23, 3, 24.823652))
pad8 = doc.addObject("PartDesign::Pad", "Pad007")
body6.addObject(pad8)
pad8.Profile = sketch9
pad8.Length = 3
body5.AllowCompound = True
doc.recompute()

boolean2 = doc.addObject("PartDesign::Boolean", "Boolean001")
body5.addObject(boolean2)
boolean2.Type = "Fuse"
boolean2.addObjects([body6])

# Sketch on an angled plane
sketch10 = doc.addObject("Sketcher::SketchObject", "Sketch009")
body5.addObject(sketch10)
sketch10.Placement = App.Placement(Vector(-18.164792, -1.5, 0.357435), App.Rotation(Vector(0, -1, 0), Vector(0.015822206, 0, 0.999874821), Vector(-0.999874821, 0, 0.015822206), "ZXY"))
add_polygon(sketch10, [(-1.5, 3.000376), (-1.5, -3.000376), (1.5, -3.000376), (1.5, 3.000376)])  # lines 0-3
sketch10.addConstraint(Sketcher.Constraint("Vertical", 0))
sketch10.addConstraint(Sketcher.Constraint("Horizontal", 1))
sketch10.addConstraint(Sketcher.Constraint("Vertical", 2))
sketch10.addConstraint(Sketcher.Constraint("Horizontal", 3))
sketch10.addConstraint(Sketcher.Constraint("Symmetric", 0, 2, 2, 2, -1, 1))
sketch10.addConstraint(Sketcher.Constraint("DistanceX", 1, 1, 1, 2, 3.0))
sketch10.addConstraint(Sketcher.Constraint("DistanceY", 0, 2, 0, 1, 6.000751))

# Sketch on an angled plane
sketch11 = doc.addObject("Sketcher::SketchObject", "Sketch010")
body5.addObject(sketch11)
sketch11.Placement = App.Placement(Vector(-41.649881, -15.196556, 1.5), App.Rotation(Vector(-0.209885921, 0.977725882, 0), Vector(0, 0, 1), Vector(0.977725882, 0.209885921, 0), "ZXY"))
add_polygon(sketch11, [(-4.069247, 1.5), (-4.069247, -1.5), (4.069247, -1.5), (4.069247, 1.5)])  # lines 0-3
sketch11.addConstraint(Sketcher.Constraint("Vertical", 0))
sketch11.addConstraint(Sketcher.Constraint("Horizontal", 1))
sketch11.addConstraint(Sketcher.Constraint("Vertical", 2))
sketch11.addConstraint(Sketcher.Constraint("Horizontal", 3))
sketch11.addConstraint(Sketcher.Constraint("Symmetric", 0, 2, 2, 2, -1, 1))
sketch11.addConstraint(Sketcher.Constraint("DistanceY", 0, 2, 0, 1, 3.0))
sketch11.addConstraint(Sketcher.Constraint("DistanceX", 1, 1, 1, 2, 8.138494))

additiveloft = doc.addObject("PartDesign::AdditiveLoft", "AdditiveLoft")
body5.addObject(additiveloft)
additiveloft.Profile = sketch10
additiveloft.Sections = [sketch11]

doc.recompute()
